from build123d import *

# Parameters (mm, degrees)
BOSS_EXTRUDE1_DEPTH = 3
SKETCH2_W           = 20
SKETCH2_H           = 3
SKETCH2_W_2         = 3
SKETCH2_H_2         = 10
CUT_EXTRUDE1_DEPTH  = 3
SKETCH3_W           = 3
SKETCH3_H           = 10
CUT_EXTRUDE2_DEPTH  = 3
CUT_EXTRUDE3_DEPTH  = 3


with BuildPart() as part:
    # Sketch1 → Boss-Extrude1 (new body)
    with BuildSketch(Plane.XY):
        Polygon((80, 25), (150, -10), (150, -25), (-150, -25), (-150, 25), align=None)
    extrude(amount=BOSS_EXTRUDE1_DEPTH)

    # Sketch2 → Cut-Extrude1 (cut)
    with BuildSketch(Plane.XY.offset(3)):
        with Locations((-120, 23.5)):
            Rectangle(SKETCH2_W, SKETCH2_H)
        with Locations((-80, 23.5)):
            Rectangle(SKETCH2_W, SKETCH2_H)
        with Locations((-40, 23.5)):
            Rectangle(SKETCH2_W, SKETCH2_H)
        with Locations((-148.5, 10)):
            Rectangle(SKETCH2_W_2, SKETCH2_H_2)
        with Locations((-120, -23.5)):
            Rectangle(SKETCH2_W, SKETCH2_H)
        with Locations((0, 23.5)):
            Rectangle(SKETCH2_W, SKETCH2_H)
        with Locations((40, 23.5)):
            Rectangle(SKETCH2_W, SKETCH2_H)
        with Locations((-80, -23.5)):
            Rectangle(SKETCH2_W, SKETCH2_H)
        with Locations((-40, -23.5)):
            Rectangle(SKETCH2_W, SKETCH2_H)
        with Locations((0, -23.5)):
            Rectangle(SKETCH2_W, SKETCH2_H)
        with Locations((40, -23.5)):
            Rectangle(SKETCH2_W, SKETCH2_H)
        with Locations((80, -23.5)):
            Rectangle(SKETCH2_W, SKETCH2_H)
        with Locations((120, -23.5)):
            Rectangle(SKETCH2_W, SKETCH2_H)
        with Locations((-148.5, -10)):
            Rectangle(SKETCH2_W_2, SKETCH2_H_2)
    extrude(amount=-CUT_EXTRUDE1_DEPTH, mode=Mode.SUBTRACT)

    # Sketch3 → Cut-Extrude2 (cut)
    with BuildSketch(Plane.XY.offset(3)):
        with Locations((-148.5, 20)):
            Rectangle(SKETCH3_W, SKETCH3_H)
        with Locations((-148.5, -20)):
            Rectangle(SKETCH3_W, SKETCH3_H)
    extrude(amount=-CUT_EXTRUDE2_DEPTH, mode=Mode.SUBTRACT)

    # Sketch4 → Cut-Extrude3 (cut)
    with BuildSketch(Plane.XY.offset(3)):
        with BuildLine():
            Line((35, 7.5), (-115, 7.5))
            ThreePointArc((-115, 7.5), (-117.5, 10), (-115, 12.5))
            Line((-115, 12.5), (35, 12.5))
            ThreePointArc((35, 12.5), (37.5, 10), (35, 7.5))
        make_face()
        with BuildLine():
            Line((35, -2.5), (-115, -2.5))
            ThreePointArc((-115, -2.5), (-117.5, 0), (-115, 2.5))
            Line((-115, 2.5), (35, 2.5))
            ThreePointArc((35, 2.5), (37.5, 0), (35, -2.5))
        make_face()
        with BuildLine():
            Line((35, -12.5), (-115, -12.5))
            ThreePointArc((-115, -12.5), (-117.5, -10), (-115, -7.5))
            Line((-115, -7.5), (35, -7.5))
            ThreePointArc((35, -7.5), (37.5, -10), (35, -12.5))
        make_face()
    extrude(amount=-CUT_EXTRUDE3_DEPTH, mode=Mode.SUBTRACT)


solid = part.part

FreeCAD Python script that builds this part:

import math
import FreeCAD as App
import Part
import Sketcher
Q = App.Units.Quantity


def add_polygon(sketch, points):
    """Adds a closed chain of lines whose ends are joined by coincident constraints."""
    first, n = sketch.GeometryCount, len(points)
    for a, b in zip(points, points[1:] + points[:1]):
        sketch.addGeometry(Part.LineSegment(App.Vector(*a, 0), App.Vector(*b, 0)), False)
    for i in range(n):
        sketch.addConstraint(Sketcher.Constraint("Coincident", first + i, 2, first + (i + 1) % n, 1))

doc = App.newDocument("Part")
body = doc.addObject("PartDesign::Body", "Body")

sketch1 = body.newObject("Sketcher::SketchObject", "Sketch")
sketch1.AttachmentSupport = (doc.getObject("XY_Plane"), [""])
sketch1.MapMode = "FlatFace"
add_polygon(sketch1, [(150, -10), (80, 25), (-150, 25), (-150, -25), (150, -25)])
sketch1.addConstraint([
    Sketcher.Constraint("Horizontal", 1),
    Sketcher.Constraint("Vertical", 2),
    Sketcher.Constraint("Horizontal", 3),
    Sketcher.Constraint("Vertical", 4),
    Sketcher.Constraint("Symmetric", 1, 2, 3, 2, -1, 1),
    Sketcher.Constraint("DistanceX", 1, 2, 1, 1, Q("230 mm")),
    Sketcher.Constraint("DistanceX", 3, 1, 3, 2, Q("300 mm")),
    Sketcher.Constraint("DistanceY", 2, 2, 2, 1, Q("50 mm")),
    Sketcher.Constraint("DistanceY", 4, 1, 4, 2, Q("15 mm")),
])
pad1 = body.newObject("PartDesign::Pad", "Pad")
pad1.Profile = sketch1
pad1.Length = 3

sketch2 = body.newObject("Sketcher::SketchObject", "Sketch001")
sketch2.AttachmentSupport = (doc.getObject("XY_Plane"), [""])
sketch2.MapMode = "FlatFace"
sketch2.AttachmentOffset = App.Placement(App.Vector(0, 0, 3), App.Rotation())
add_polygon(sketch2, [(-130, 25), (-130, 22), (-110, 22), (-110, 25)])
add_polygon(sketch2, [(-90, 25), (-90, 22), (-70, 22), (-70, 25)])
add_polygon(sketch2, [(-50, 25), (-50, 22), (-30, 22), (-30, 25)])
add_polygon(sketch2, [(-150, 15), (-150, 5), (-147, 5), (-147, 15)])
add_polygon(sketch2, [(-130, -22), (-130, -25), (-110, -25), (-110, -22)])
add_polygon(sketch2, [(-10, 25), (-10, 22), (10, 22), (10, 25)])
add_polygon(sketch2, [(30, 25), (30, 22), (50, 22), (50, 25)])
add_polygon(sketch2, [(-90, -22), (-90, -25), (-70, -25), (-70, -22)])
add_polygon(sketch2, [(-50, -22), (-50, -25), (-30, -25), (-30, -22)])
add_polygon(sketch2, [(-10, -22), (-10, -25), (10, -25), (10, -22)])
add_polygon(sketch2, [(30, -22), (30, -25), (50, -25), (50, -22)])
add_polygon(sketch2, [(70, -22), (70, -25), (90, -25), (90, -22)])
add_polygon(sketch2, [(110, -22), (110, -25), (130, -25), (130, -22)])
add_polygon(sketch2, [(-150, -5), (-150, -15), (-147, -15), (-147, -5)])
sketch2.addConstraint([
    Sketcher.Constraint("Vertical", 0),
    Sketcher.Constraint("Horizontal", 1),
    Sketcher.Constraint("Vertical", 2),
    Sketcher.Constraint("Horizontal", 3),
    Sketcher.Constraint("Vertical", 4),
    Sketcher.Constraint("Horizontal", 5),
    Sketcher.Constraint("Vertical", 6),
    Sketcher.Constraint("Horizontal", 7),
    Sketcher.Constraint("Vertical", 8),
    Sketcher.Constraint("Horizontal", 9),
    Sketcher.Constraint("Vertical", 10),
    Sketcher.Constraint("Horizontal", 11),
    Sketcher.Constraint("Vertical", 12),
    Sketcher.Constraint("Horizontal", 13),
    Sketcher.Constraint("Vertical", 14),
    Sketcher.Constraint("Horizontal", 15),
    Sketcher.Constraint("Vertical", 16),
    Sketcher.Constraint("Horizontal", 17),
    Sketcher.Constraint("Vertical", 18),
    Sketcher.Constraint("Horizontal", 19),
    Sketcher.Constraint("Vertical", 20),
    Sketcher.Constraint("Horizontal", 21),
    Sketcher.Constraint("Vertical", 22),
    Sketcher.Constraint("Horizontal", 23),
    Sketcher.Constraint("Vertical", 24),
    Sketcher.Constraint("Horizontal", 25),
    Sketcher.Constraint("Vertical", 26),
    Sketcher.Constraint("Horizontal", 27),
    Sketcher.Constraint("Vertical", 28),
    Sketcher.Constraint("Horizontal", 29),
    Sketcher.Constraint("Vertical", 30),
    Sketcher.Constraint("Horizontal", 31),
    Sketcher.Constraint("Vertical", 32),
    Sketcher.Constraint("Horizontal", 33),
    Sketcher.Constraint("Vertical", 34),
    Sketcher.Constraint("Horizontal", 35),
    Sketcher.Constraint("Vertical", 36),
    Sketcher.Constraint("Horizontal", 37),
    Sketcher.Constraint("Vertical", 38),
    Sketcher.Constraint("Horizontal", 39),
    Sketcher.Constraint("Vertical", 40),
    Sketcher.Constraint("Horizontal", 41),
    Sketcher.Constraint("Vertical", 42),
    Sketcher.Constraint("Horizontal", 43),
    Sketcher.Constraint("Vertical", 44),
    Sketcher.Constraint("Horizontal", 45),
    Sketcher.Constraint("Vertical", 46),
    Sketcher.Constraint("Horizontal", 47),
    Sketcher.Constraint("Vertical", 48),
    Sketcher.Constraint("Horizontal", 49),
    Sketcher.Constraint("Vertical", 50),
    Sketcher.Constraint("Horizontal", 51),
    Sketcher.Constraint("Vertical", 52),
    Sketcher.Constraint("Horizontal", 53),
    Sketcher.Constraint("Vertical", 54),
    Sketcher.Constraint("Horizontal", 55),
    Sketcher.Constraint("Symmetric", 26, 2, 32, 2, -1, 1),
    Sketcher.Constraint("Symmetric", 24, 2, 34, 2, -1, 1),
    Sketcher.Constraint("Symmetric", 22, 2, 36, 2, -1, 1),
    Sketcher.Constraint("Symmetric", 20, 2, 38, 2, -1, 1),
    Sketcher.Constraint("Symmetric", 10, 2, 40, 2, -1, 1),
    Sketcher.Constraint("Symmetric", 8, 2, 42, 2, -1, 1),
    Sketcher.Constraint("Symmetric", 6, 2, 44, 2, -1, 1),
    Sketcher.Constraint("Symmetric", 4, 2, 46, 2, -1, 1),
    Sketcher.Constraint("Symmetric", 2, 2, 48, 2, -1, 1),
    Sketcher.Constraint("Symmetric", 0, 2, 50, 2, -1, 1),
    Sketcher.Constraint("Symmetric", 9, 2, 24, 2, -2),
    Sketcher.Constraint("Symmetric", 11, 2, 26, 2, -2),
    Sketcher.Constraint("Symmetric", 29, 2, 44, 2, -2),
    Sketcher.Constraint("Symmetric", 31, 2, 46, 2, -2),
    Sketcher.Constraint("Symmetric", 17, 2, 48, 2, -2),
    Sketcher.Constraint("Symmetric", 19, 2, 50, 2, -2),
    Sketcher.Constraint("Symmetric", 15, 2, 52, 2, -1),
    Sketcher.Constraint("Symmetric", 13, 2, 54, 2, -1),
    Sketcher.Constraint("Horizontal", 1, 2, 4, 2),
    Sketcher.Constraint("Horizontal", 3, 2, 6, 2),
    Sketcher.Constraint("Horizontal", 5, 2, 8, 2),
    Sketcher.Constraint("Horizontal", 7, 2, 10, 2),
    Sketcher.Constraint("Horizontal", 9, 2, 20, 2),
    Sketcher.Constraint("Horizontal", 11, 2, 22, 2),
    Sketcher.Constraint("Vertical", 23, 2, 36, 2),
    Sketcher.Constraint("Equal", 3, 5),
    Sketcher.Constraint("Equal", 7, 9),
    Sketcher.Constraint("Equal", 19, 21),
    Sketcher.Constraint("Equal", 55, 0),
    Sketcher.Constraint("DistanceX", 1, 1, 1, 2, Q("20 mm")),
    Sketcher.Constraint("DistanceX", 13, 1, 13, 2, Q("3 mm")),
    Sketcher.Constraint("DistanceY", 12, 2, 12, 1, Q("10 mm")),
    Sketcher.Constraint("DistanceX", 0, 2, -1, 1, Q("130 mm")),
    Sketcher.Constraint("DistanceY", -1, 1, 0, 2, Q("22 mm")),
    Sketcher.Constraint("DistanceX", 4, 2, -1, 1, Q("90 mm")),
    Sketcher.Constraint("DistanceX", 8, 2, -1, 1, Q("50 mm")),
    Sketcher.Constraint("DistanceX", 12, 2, -1, 1, Q("150 mm")),
    Sketcher.Constraint("DistanceY", -1, 1, 12, 2, Q("5 mm")),
])
pocket1 = body.newObject("PartDesign::Pocket", "Pocket")
pocket1.Profile = sketch2
pocket1.Length = 3

sketch3 = body.newObject("Sketcher::SketchObject", "Sketch002")
sketch3.AttachmentSupport = (doc.getObject("XY_Plane"), [""])
sketch3.MapMode = "FlatFace"
sketch3.AttachmentOffset = App.Placement(App.Vector(0, 0, 3), App.Rotation())
add_polygon(sketch3, [(-150, 25), (-150, 15), (-147, 15), (-147, 25)])
add_polygon(sketch3, [(-150, -15), (-150, -25), (-147, -25), (-147, -15)])
sketch3.addConstraint([
    Sketcher.Constraint("Vertical", 0),
    Sketcher.Constraint("Horizontal", 1),
    Sketcher.Constraint("Vertical", 2),
    Sketcher.Constraint("Horizontal", 3),
    Sketcher.Constraint("Vertical", 4),
    Sketcher.Constraint("Horizontal", 5),
    Sketcher.Constraint("Vertical", 6),
    Sketcher.Constraint("Horizontal", 7),
    Sketcher.Constraint("Symmetric", 3, 2, 4, 2, -1),
    Sketcher.Constraint("Symmetric", 1, 2, 6, 2, -1),
    Sketcher.Constraint("DistanceX", 1, 1, 1, 2, Q("3 mm")),
    Sketcher.Constraint("DistanceY", 0, 2, 0, 1, Q("10 mm")),
    Sketcher.Constraint("DistanceX", 0, 2, -1, 1, Q("150 mm")),
    Sketcher.Constraint("DistanceY", -1, 1, 0, 2, Q("15 mm")),
])
pocket2 = body.newObject("PartDesign::Pocket", "Pocket001")
pocket2.Profile = sketch3
pocket2.Length = 3

sketch4 = body.newObject("Sketcher::SketchObject", "Sketch003")
sketch4.AttachmentSupport = (doc.getObject("XY_Plane"), [""])
sketch4.MapMode = "FlatFace"
sketch4.AttachmentOffset = App.Placement(App.Vector(0, 0, 3), App.Rotation())
sketch4.addGeometry([
    Part.LineSegment(App.Vector(-115, 7.5, 0), App.Vector(35, 7.5, 0)),
    Part.ArcOfCircle(Part.Circle(App.Vector(35, 10, 0), App.Vector(0, 0, 1), 2.5), math.radians(-90), math.radians(90)),
    Part.LineSegment(App.Vector(35, 12.5, 0), App.Vector(-115, 12.5, 0)),
    Part.ArcOfCircle(Part.Circle(App.Vector(-115, 10, 0), App.Vector(0, 0, 1), 2.5), math.radians(90), math.radians(270)),
    Part.LineSegment(App.Vector(-115, -2.5, 0), App.Vector(35, -2.5, 0)),
    Part.ArcOfCircle(Part.Circle(App.Vector(35, 0, 0), App.Vector(0, 0, 1), 2.5), math.radians(-90), math.radians(90)),
    Part.LineSegment(App.Vector(35, 2.5, 0), App.Vector(-115, 2.5, 0)),
    Part.ArcOfCircle(Part.Circle(App.Vector(-115, 0, 0), App.Vector(0, 0, 1), 2.5), math.radians(90), math.radians(270)),
    Part.LineSegment(App.Vector(-115, -12.5, 0), App.Vector(35, -12.5, 0)),
    Part.ArcOfCircle(Part.Circle(App.Vector(35, -10, 0), App.Vector(0, 0, 1), 2.5), math.radians(-90), math.radians(90)),
    Part.LineSegment(App.Vector(35, -7.5, 0), App.Vector(-115, -7.5, 0)),
    Part.ArcOfCircle(Part.Circle(App.Vector(-115, -10, 0), App.Vector(0, 0, 1), 2.5), math.radians(90), math.radians(270)),
], False)
sketch4.addConstraint([
    Sketcher.Constraint("Tangent", 0, 2, 1, 1),
    Sketcher.Constraint("Tangent", 1, 2, 2, 1),
    Sketcher.Constraint("Tangent", 2, 2, 3, 1),
    Sketcher.Constraint("Tangent", 3, 2, 0, 1),
    Sketcher.Constraint("Tangent", 4, 2, 5, 1),
    Sketcher.Constraint("Tangent", 5, 2, 6, 1),
    Sketcher.Constraint("Tangent", 6, 2, 7, 1),
    Sketcher.Constraint("Tangent", 7, 2, 4, 1),
    Sketcher.Constraint("Tangent", 8, 2, 9, 1),
    Sketcher.Constraint("Tangent", 9, 2, 10, 1),
    Sketcher.Constraint("Tangent", 10, 2, 11, 1),
    Sketcher.Constraint("Tangent", 11, 2, 8, 1),
    Sketcher.Constraint("Horizontal", 0),
    Sketcher.Constraint("Horizontal", 2),
    Sketcher.Constraint("Horizontal", 4),
    Sketcher.Constraint("Horizontal", 6),
    Sketcher.Constraint("Horizontal", 8),
    Sketcher.Constraint("Horizontal", 10),
    Sketcher.Constraint("Equal", 3, 5),
    Sketcher.Constraint("Equal", 7, 9),
    Sketcher.Constraint("Symmetric", 1, 3, 9, 3, -1),
    Sketcher.Constraint("PointOnObject", 5, 3, -1),
    Sketcher.Constraint("Vertical", 1, 3, 5, 3),
    Sketcher.Constraint("Vertical", 3, 3, 7, 3),
    Sketcher.Constraint("Vertical", 7, 3, 11, 3),
    Sketcher.Constraint("Radius", 1, Q("2.5 mm")),
    Sketcher.Constraint("DistanceX", 0, 1, 0, 2, Q("150 mm")),
    Sketcher.Constraint("DistanceX", -1, 1, 1, 3, Q("35 mm")),
    Sketcher.Constraint("DistanceY", -1, 1, 1, 3, Q("10 mm")),
])
pocket3 = body.newObject("PartDesign::Pocket", "Pocket002")
pocket3.Profile = sketch4
pocket3.Length = 3

doc.recompute()
